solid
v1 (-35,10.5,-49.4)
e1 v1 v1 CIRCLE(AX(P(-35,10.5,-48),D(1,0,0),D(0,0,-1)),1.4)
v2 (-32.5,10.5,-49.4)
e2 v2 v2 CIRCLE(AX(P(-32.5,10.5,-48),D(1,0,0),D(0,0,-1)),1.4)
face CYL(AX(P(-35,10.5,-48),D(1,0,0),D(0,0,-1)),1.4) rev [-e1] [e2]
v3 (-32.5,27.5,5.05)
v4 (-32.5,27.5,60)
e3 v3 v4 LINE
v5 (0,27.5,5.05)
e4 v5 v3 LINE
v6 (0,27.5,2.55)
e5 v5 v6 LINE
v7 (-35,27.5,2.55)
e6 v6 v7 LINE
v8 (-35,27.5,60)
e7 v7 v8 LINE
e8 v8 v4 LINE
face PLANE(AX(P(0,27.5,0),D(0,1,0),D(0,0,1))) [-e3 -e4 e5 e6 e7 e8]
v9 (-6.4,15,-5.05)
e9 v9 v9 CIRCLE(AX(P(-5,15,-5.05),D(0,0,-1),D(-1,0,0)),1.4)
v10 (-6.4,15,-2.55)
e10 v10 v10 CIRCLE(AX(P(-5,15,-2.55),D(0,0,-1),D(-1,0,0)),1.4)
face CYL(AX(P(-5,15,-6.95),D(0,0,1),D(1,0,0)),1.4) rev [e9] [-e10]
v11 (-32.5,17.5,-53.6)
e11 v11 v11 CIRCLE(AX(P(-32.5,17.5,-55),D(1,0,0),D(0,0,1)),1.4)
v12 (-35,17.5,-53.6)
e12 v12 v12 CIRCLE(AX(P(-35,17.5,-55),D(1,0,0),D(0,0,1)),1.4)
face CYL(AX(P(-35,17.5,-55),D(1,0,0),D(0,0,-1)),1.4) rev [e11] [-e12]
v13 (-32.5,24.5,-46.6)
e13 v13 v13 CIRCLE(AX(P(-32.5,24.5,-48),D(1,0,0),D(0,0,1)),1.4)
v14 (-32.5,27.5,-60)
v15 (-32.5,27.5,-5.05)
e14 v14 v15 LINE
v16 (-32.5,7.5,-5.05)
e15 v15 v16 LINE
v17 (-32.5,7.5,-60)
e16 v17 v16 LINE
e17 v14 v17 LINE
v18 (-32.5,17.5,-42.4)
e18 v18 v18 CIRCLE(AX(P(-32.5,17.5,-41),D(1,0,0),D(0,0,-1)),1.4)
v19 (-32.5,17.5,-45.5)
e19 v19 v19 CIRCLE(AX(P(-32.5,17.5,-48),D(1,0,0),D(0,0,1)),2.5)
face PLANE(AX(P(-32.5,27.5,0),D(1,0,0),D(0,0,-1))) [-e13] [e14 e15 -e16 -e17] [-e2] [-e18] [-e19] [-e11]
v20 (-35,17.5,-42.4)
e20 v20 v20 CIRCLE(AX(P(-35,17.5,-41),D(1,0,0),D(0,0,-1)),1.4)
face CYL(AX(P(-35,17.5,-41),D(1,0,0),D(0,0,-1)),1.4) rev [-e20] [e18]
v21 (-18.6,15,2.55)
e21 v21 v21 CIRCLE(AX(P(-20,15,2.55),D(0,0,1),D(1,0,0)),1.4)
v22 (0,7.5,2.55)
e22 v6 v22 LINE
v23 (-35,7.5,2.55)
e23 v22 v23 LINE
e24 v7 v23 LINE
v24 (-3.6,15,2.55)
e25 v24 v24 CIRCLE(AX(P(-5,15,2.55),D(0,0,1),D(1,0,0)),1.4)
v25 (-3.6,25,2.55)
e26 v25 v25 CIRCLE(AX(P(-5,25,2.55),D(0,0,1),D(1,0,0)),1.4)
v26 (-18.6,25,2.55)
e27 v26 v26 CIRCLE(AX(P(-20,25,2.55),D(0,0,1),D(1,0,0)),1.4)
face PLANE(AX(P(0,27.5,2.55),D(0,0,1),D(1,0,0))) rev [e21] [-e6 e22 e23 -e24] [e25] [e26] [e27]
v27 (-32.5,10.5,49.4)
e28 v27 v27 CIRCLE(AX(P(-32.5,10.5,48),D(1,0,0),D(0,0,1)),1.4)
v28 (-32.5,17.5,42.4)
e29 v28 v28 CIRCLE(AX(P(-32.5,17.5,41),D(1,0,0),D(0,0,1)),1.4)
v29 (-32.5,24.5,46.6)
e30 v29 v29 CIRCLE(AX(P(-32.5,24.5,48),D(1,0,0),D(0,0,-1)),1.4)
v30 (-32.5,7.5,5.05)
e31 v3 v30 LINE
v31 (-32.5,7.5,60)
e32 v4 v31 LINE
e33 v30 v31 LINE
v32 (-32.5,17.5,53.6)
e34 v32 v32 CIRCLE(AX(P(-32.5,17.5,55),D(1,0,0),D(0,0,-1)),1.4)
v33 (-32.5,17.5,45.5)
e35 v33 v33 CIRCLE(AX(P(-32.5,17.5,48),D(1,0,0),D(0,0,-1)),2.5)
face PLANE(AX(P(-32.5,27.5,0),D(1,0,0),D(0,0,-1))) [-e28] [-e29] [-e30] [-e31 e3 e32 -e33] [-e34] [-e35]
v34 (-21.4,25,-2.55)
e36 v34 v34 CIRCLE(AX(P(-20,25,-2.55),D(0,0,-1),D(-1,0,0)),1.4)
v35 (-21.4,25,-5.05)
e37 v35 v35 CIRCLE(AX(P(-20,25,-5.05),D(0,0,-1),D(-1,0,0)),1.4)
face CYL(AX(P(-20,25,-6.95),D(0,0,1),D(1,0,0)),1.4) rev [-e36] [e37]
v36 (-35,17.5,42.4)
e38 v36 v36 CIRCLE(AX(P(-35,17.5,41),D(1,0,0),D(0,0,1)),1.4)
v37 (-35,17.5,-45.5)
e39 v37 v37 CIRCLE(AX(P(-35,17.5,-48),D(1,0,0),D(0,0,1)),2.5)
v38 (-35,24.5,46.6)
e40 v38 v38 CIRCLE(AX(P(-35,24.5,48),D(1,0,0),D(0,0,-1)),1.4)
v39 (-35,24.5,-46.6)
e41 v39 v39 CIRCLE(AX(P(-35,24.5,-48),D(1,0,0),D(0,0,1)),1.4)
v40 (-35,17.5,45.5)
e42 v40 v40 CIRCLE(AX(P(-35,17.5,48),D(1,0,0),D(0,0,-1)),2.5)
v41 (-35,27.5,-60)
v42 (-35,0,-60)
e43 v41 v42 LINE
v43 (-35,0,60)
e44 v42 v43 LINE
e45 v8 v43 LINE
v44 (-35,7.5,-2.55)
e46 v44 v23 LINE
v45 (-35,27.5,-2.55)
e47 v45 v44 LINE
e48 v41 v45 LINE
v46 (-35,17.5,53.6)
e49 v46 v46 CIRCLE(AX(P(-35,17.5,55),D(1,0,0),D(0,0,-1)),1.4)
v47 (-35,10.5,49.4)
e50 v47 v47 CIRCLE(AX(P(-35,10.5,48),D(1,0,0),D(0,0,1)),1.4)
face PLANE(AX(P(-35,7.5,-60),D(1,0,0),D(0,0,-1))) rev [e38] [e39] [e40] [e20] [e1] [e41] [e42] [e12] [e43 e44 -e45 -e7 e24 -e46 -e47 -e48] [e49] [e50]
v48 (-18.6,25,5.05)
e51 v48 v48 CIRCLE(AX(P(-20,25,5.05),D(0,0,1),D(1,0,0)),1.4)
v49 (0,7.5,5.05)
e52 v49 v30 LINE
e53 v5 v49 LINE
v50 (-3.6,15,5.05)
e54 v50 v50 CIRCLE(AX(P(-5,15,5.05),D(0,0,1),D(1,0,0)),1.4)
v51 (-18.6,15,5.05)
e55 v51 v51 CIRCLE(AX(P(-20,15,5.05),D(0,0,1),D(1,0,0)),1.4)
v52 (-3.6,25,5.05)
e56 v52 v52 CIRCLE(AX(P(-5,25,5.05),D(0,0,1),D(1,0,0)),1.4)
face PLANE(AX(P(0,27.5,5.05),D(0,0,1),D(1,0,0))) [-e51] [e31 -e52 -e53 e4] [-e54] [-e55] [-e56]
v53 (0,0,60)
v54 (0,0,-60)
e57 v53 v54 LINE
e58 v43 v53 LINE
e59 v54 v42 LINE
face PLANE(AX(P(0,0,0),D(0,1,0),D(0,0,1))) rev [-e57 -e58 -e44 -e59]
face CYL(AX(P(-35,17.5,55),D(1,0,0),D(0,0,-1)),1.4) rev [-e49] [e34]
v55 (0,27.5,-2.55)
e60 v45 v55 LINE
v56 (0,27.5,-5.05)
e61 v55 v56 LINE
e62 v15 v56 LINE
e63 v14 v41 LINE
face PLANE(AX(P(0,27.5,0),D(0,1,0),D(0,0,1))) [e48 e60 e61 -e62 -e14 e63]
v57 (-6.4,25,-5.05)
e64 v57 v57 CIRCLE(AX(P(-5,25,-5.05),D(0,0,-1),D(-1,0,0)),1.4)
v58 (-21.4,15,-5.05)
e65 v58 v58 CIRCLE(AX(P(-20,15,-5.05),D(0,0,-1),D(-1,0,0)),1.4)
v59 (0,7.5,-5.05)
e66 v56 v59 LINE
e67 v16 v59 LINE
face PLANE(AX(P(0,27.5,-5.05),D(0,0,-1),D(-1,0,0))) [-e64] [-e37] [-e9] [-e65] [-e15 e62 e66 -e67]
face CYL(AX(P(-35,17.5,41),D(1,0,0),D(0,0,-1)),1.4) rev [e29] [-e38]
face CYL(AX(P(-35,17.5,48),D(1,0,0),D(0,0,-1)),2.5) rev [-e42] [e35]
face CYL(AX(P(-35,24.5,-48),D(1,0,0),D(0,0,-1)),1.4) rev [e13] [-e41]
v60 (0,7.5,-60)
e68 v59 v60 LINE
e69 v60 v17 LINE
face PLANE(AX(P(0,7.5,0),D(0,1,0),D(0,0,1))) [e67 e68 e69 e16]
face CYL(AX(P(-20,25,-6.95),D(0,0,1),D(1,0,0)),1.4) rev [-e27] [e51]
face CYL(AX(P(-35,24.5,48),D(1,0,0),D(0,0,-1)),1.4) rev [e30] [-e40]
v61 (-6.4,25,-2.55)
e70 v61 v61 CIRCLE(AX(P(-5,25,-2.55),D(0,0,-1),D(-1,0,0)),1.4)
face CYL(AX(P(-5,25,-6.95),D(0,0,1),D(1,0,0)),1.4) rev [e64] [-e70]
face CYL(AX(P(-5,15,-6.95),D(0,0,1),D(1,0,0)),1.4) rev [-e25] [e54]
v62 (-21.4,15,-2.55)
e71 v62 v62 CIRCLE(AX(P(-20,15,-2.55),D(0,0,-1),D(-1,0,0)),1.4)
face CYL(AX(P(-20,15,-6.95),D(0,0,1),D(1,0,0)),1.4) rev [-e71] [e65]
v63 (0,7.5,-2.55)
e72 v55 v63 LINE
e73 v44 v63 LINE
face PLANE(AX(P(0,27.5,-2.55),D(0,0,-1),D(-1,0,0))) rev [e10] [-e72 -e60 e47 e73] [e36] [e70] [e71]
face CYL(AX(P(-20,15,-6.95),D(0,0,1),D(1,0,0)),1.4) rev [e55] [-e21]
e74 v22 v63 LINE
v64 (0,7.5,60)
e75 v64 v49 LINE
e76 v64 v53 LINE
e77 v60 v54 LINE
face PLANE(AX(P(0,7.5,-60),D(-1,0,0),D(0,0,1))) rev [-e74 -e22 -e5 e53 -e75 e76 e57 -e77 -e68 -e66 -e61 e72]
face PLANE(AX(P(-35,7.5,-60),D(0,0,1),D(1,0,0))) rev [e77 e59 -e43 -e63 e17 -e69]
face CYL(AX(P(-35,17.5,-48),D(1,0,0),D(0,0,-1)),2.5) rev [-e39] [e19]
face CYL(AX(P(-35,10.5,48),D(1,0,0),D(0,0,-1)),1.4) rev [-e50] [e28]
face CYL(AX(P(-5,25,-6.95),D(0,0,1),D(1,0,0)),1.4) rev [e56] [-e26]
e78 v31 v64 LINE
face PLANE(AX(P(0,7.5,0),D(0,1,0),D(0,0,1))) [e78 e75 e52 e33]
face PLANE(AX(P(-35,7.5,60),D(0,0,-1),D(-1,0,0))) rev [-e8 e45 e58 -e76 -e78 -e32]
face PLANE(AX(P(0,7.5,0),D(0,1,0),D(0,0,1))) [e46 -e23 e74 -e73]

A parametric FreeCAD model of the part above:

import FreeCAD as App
import Part
import Sketcher
from FreeCAD import Vector
Q = App.Units.Quantity


def add_polygon(sketch, points):
    """Adds a closed chain of lines whose ends are joined by coincident constraints."""
    first, n = sketch.GeometryCount, len(points)
    for a, b in zip(points, points[1:] + points[:1]):
        sketch.addGeometry(Part.LineSegment(App.Vector(*a, 0), App.Vector(*b, 0)), False)
    for i in range(n):
        sketch.addConstraint(Sketcher.Constraint("Coincident", first + i, 2, first + (i + 1) % n, 1))

doc = App.newDocument("Part")
body = doc.addObject("PartDesign::Body", "Body")

# Sketch on XZ plane
sketch1 = body.newObject("Sketcher::SketchObject", "Sketch")
sketch1.AttachmentSupport = (doc.getObject("XZ_Plane"), [""])
sketch1.MapMode = "FlatFace"
add_polygon(sketch1, [(-35, -60), (-35, 60), (0, 60), (0, -60)])  # lines 0-3
sketch1.addConstraint([
    Sketcher.Constraint("Vertical", 0),
    Sketcher.Constraint("Horizontal", 1),
    Sketcher.Constraint("Vertical", 2),
    Sketcher.Constraint("Horizontal", 3),
    Sketcher.Constraint("Symmetric", 1, 2, 2, 2, -1, 1),
    Sketcher.Constraint("DistanceX", 1, 1, 1, 2, Q("35 mm")),
    Sketcher.Constraint("DistanceY", 0, 1, 0, 2, Q("120 mm")),
])
pad1 = body.newObject("PartDesign::Pad", "Pad")
pad1.Profile = sketch1
pad1.Length = 7.5
pad1.Reversed = True

# Sketch on XZ plane
sketch2 = body.newObject("Sketcher::SketchObject", "Sketch001")
sketch2.AttachmentSupport = (doc.getObject("XZ_Plane"), [""])
sketch2.MapMode = "FlatFace"
sketch2.AttachmentOffset = App.Placement(Vector(0, 0, -7.5), App.Rotation())
add_polygon(sketch2, [(0, -5), (-32.5, -5), (-32.5, -60), (-35, -60), (-35, -2.5), (0, -2.5)])  # lines 0-5
add_polygon(sketch2, [(0, 5), (0, 2.5), (-35, 2.5), (-35, 60), (-32.5, 60), (-32.5, 5)])  # lines 6-11
sketch2.addConstraint([
    Sketcher.Constraint("Horizontal", 0),
    Sketcher.Constraint("Vertical", 1),
    Sketcher.Constraint("Horizontal", 2),
    Sketcher.Constraint("Vertical", 3),
    Sketcher.Constraint("Horizontal", 4),
    Sketcher.Constraint("Vertical", 5),
    Sketcher.Constraint("Vertical", 6),
    Sketcher.Constraint("Horizontal", 7),
    Sketcher.Constraint("Vertical", 8),
    Sketcher.Constraint("Horizontal", 9),
    Sketcher.Constraint("Vertical", 10),
    Sketcher.Constraint("Horizontal", 11),
    Sketcher.Constraint("Symmetric", 4, 2, 6, 2, -1, 1),
    Sketcher.Constraint("Symmetric", 2, 2, 8, 2, -1),
    Sketcher.Constraint("Symmetric", 0, 2, 10, 2, -1),
    Sketcher.Constraint("PointOnObject", 4, 2, -2),
    Sketcher.Constraint("Equal", 9, 5),
    Sketcher.Constraint("DistanceX", 4, 1, 4, 2, Q("35 mm")),
    Sketcher.Constraint("DistanceX", 0, 2, 0, 1, Q("32.5 mm")),
    Sketcher.Constraint("DistanceY", 1, 2, -1, 1, Q("60 mm")),
    Sketcher.Constraint("DistanceY", 1, 2, 1, 1, Q("54.95 mm")),
])
pad2 = body.newObject("PartDesign::Pad", "Pad001")
pad2.Profile = sketch2
pad2.Length = 20
pad2.Reversed = True

# Sketch on XY plane
sketch3 = body.newObject("Sketcher::SketchObject", "Sketch002")
sketch3.AttachmentSupport = (doc.getObject("XY_Plane"), [""])
sketch3.MapMode = "FlatFace"
sketch3.AttachmentOffset = App.Placement(Vector(0, 0, 5.05), App.Rotation())
sketch3.addGeometry([
    Part.Circle(Vector(-5, 25, 0), Vector(0, 0, 1), 1.4),
    Part.Circle(Vector(-20, 25, 0), Vector(0, 0, 1), 1.4),
    Part.Circle(Vector(-5, 15, 0), Vector(0, 0, 1), 1.4),
    Part.Circle(Vector(-20, 15, 0), Vector(0, 0, 1), 1.4),
], False)
sketch3.addConstraint([
    Sketcher.Constraint("Equal", 0, 1),
    Sketcher.Constraint("Equal", 1, 2),
    Sketcher.Constraint("Equal", 2, 3),
    Sketcher.Constraint("Horizontal", 0, 3, 1, 3),
    Sketcher.Constraint("Horizontal", 2, 3, 3, 3),
    Sketcher.Constraint("Vertical", 0, 3, 2, 3),
    Sketcher.Constraint("Vertical", 1, 3, 3, 3),
    Sketcher.Constraint("Diameter", 0, Q("2.8 mm")),
    Sketcher.Constraint("DistanceX", 0, 3, -1, 1, Q("5 mm")),
    Sketcher.Constraint("DistanceY", -1, 1, 0, 3, Q("25 mm")),
    Sketcher.Constraint("DistanceX", 1, 3, -1, 1, Q("20 mm")),
    Sketcher.Constraint("DistanceY", -1, 1, 2, 3, Q("15 mm")),
])
pocket1 = body.newObject("PartDesign::Pocket", "Pocket")
pocket1.Profile = sketch3
pocket1.Length = 12

# Sketch on YZ plane
sketch4 = body.newObject("Sketcher::SketchObject", "Sketch003")
sketch4.AttachmentSupport = (doc.getObject("YZ_Plane"), [""])
sketch4.MapMode = "FlatFace"
sketch4.AttachmentOffset = App.Placement(Vector(0, 0, -32.5), App.Rotation())
sketch4.addGeometry([
    Part.Circle(Vector(17.5, 48, 0), Vector(0, 0, 1), 2.5),  # 0
    Part.Circle(Vector(24.5, 48, 0), Vector(0, 0, 1), 1.4),  # 1
    Part.Circle(Vector(17.5, 55, 0), Vector(0, 0, 1), 1.4),  # 2
    Part.Circle(Vector(10.5, 48, 0), Vector(0, 0, 1), 1.4),  # 3
    Part.Circle(Vector(17.5, 41, 0), Vector(0, 0, 1), 1.4),  # 4
    Part.Circle(Vector(17.5, -41, 0), Vector(0, 0, 1), 1.4),  # 5
    Part.Circle(Vector(10.5, -48, 0), Vector(0, 0, 1), 1.4),  # 6
    Part.Circle(Vector(17.5, -55, 0), Vector(0, 0, 1), 1.4),  # 7
    Part.Circle(Vector(24.5, -48, 0), Vector(0, 0, 1), 1.4),  # 8
    Part.Circle(Vector(17.5, -48, 0), Vector(0, 0, 1), 2.5),  # 9
], False)
sketch4.addConstraint([
    Sketcher.Constraint("Equal", 1, 2),
    Sketcher.Constraint("Equal", 2, 3),
    Sketcher.Constraint("Equal", 3, 4),
    Sketcher.Constraint("Equal", 4, 5),
    Sketcher.Constraint("Equal", 5, 6),
    Sketcher.Constraint("Equal", 6, 7),
    Sketcher.Constraint("Equal", 7, 8),
    Sketcher.Constraint("Equal", 0, 9),
    Sketcher.Constraint("Symmetric", 4, 3, 5, 3, -1),
    Sketcher.Constraint("Symmetric", 3, 3, 6, 3, -1),
    Sketcher.Constraint("Symmetric", 2, 3, 7, 3, -1),
    Sketcher.Constraint("Symmetric", 1, 3, 8, 3, -1),
    Sketcher.Constraint("Symmetric", 0, 3, 9, 3, -1),
    Sketcher.Constraint("Horizontal", 0, 3, 1, 3),
    Sketcher.Constraint("Horizontal", 1, 3, 3, 3),
    Sketcher.Constraint("Vertical", 0, 3, 2, 3),
    Sketcher.Constraint("Vertical", 2, 3, 4, 3),
    Sketcher.Constraint("Diameter", 0, Q("5 mm")),
    Sketcher.Constraint("Diameter", 1, Q("2.8 mm")),
    Sketcher.Constraint("DistanceY", -1, 1, 0, 3, Q("48 mm")),
    Sketcher.Constraint("DistanceY", -1, 1, 2, 3, Q("55 mm")),
    Sketcher.Constraint("DistanceY", -1, 1, 4, 3, Q("41 mm")),
    Sketcher.Constraint("DistanceX", 0, 3, 1, 3, Q("7 mm")),
    Sketcher.Constraint("DistanceX", 3, 3, 0, 3, Q("7 mm")),
    Sketcher.Constraint("DistanceX", -1, 1, 0, 3, Q("17.5 mm")),
])
pocket2 = body.newObject("PartDesign::Pocket", "Pocket001")
pocket2.Profile = sketch4
pocket2.Length = 2.5

doc.recompute()
